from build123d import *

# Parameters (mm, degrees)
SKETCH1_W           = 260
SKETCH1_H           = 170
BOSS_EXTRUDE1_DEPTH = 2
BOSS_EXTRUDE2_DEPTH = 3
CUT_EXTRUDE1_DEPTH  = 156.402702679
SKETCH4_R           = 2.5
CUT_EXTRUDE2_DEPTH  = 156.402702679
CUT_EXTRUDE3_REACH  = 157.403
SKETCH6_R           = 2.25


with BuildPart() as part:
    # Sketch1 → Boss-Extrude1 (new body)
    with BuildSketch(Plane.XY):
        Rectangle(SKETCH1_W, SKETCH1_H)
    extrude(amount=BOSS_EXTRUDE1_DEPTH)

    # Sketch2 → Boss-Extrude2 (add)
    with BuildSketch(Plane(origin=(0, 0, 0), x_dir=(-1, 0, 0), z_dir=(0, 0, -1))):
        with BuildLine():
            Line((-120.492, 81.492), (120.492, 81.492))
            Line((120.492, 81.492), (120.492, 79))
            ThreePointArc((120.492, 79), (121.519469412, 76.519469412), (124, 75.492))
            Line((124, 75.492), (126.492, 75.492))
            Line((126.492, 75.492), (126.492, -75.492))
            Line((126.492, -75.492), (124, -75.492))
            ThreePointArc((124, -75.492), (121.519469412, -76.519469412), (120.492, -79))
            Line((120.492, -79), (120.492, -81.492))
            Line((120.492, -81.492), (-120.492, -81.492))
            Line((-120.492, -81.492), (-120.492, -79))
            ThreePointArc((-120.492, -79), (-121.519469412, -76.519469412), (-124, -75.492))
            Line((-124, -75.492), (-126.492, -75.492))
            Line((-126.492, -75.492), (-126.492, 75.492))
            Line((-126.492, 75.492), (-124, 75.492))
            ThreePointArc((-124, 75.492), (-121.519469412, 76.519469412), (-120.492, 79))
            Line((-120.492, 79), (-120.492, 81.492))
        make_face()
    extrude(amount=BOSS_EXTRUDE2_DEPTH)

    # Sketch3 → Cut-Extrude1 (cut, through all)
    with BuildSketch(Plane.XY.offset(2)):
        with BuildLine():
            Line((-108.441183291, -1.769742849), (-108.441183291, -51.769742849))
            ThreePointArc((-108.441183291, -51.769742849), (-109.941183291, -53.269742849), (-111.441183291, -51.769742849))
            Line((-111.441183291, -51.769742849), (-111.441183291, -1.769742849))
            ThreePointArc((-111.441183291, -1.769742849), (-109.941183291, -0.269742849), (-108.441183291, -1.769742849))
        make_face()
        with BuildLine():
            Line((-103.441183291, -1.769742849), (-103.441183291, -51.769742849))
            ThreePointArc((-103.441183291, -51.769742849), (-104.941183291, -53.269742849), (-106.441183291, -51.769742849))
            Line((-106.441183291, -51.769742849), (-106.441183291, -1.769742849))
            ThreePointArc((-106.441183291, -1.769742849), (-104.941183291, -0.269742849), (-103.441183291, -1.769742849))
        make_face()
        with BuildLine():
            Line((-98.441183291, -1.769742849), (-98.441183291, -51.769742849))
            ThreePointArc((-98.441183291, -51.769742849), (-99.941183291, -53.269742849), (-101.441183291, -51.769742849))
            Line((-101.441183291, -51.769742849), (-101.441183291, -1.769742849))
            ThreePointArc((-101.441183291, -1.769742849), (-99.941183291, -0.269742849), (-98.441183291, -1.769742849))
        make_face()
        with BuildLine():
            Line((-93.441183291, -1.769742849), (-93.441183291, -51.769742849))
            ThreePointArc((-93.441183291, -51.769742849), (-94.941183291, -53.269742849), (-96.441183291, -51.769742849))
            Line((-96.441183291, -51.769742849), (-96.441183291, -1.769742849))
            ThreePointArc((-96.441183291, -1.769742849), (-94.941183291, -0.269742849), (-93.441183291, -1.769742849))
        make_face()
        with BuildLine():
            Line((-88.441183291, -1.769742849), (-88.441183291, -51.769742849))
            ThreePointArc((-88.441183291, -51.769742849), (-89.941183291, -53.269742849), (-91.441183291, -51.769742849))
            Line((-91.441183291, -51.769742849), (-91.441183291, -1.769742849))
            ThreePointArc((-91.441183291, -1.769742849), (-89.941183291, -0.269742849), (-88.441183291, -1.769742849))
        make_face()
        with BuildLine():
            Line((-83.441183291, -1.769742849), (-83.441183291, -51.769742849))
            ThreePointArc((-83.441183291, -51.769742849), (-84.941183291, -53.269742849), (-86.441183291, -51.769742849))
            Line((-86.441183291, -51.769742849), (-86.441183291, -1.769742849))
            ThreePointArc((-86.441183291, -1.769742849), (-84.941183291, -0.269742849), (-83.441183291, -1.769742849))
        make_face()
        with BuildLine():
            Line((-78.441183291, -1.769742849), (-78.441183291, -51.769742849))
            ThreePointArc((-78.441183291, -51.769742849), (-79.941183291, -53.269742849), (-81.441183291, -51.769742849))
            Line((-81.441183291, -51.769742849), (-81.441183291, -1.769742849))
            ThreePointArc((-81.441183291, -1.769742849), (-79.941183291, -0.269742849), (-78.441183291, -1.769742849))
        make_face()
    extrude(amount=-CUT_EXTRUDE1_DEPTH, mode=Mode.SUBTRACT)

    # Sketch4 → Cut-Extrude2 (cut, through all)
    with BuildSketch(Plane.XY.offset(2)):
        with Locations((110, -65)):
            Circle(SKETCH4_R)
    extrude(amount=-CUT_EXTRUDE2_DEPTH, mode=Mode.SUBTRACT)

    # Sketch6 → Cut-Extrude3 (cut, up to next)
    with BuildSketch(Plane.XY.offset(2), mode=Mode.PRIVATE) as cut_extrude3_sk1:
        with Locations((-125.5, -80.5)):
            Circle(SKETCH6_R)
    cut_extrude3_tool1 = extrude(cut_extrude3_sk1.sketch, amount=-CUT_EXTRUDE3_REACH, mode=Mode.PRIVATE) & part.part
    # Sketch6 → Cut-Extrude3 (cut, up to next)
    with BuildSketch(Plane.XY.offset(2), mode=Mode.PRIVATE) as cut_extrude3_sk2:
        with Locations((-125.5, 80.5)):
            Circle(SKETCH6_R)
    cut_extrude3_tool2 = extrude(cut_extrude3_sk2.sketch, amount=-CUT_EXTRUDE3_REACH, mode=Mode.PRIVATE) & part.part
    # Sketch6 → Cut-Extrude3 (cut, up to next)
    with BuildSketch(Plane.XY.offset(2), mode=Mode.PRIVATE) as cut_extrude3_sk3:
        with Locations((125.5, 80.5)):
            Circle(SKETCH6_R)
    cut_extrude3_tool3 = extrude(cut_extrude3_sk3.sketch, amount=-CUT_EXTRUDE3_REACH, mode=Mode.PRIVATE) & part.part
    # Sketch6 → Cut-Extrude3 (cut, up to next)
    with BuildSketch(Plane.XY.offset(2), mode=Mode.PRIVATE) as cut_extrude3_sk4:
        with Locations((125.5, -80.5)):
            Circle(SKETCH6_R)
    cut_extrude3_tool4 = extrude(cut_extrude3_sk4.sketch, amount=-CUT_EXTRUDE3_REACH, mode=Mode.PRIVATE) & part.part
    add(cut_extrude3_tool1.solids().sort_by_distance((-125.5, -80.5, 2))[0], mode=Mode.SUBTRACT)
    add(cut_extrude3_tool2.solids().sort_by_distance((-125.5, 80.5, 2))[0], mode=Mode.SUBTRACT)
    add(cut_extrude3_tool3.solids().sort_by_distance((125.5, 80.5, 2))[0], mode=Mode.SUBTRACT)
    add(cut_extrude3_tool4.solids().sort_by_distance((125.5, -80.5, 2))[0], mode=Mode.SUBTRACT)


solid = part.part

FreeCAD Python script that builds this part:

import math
import FreeCAD as App
import Part
import Sketcher
Q = App.Units.Quantity

doc = App.newDocument("Part")
body = doc.addObject("PartDesign::Body", "Body")

# Sketch on XY plane
sketch1 = doc.addObject("Sketcher::SketchObject", "Sketch")
body.addObject(sketch1)
sketch1.AttachmentSupport = (doc.XY_Plane, [""])
sketch1.MapMode = "FlatFace"
sketch1.addGeometry([
    Part.LineSegment(App.Vector(-130, 85, 0), App.Vector(-130, -85, 0)),
    Part.LineSegment(App.Vector(-130, -85, 0), App.Vector(130, -85, 0)),
    Part.LineSegment(App.Vector(130, -85, 0), App.Vector(130, 85, 0)),
    Part.LineSegment(App.Vector(130, 85, 0), App.Vector(-130, 85, 0)),
], False)
sketch1.addConstraint([
    Sketcher.Constraint("Coincident", 0, 2, 1, 1),
    Sketcher.Constraint("Coincident", 1, 2, 2, 1),
    Sketcher.Constraint("Coincident", 2, 2, 3, 1),
    Sketcher.Constraint("Coincident", 3, 2, 0, 1),
    Sketcher.Constraint("Vertical", 0),
    Sketcher.Constraint("Horizontal", 1),
    Sketcher.Constraint("Vertical", 2),
    Sketcher.Constraint("Horizontal", 3),
    Sketcher.Constraint("Symmetric", 0, 2, 2, 2, -1, 1),
    Sketcher.Constraint("DistanceX", 1, 1, 1, 2, Q("260 mm")),
    Sketcher.Constraint("DistanceY", 0, 2, 0, 1, Q("170 mm")),
])
pad1 = doc.addObject("PartDesign::Pad", "Pad")
body.addObject(pad1)
pad1.Profile = sketch1
pad1.Length = 2

# Sketch on XY plane
sketch2 = doc.addObject("Sketcher::SketchObject", "Sketch001")
body.addObject(sketch2)
sketch2.AttachmentSupport = (doc.XY_Plane, [""])
sketch2.MapMode = "FlatFace"
sketch2.addGeometry([
    Part.LineSegment(App.Vector(-120.492, 81.492, 0), App.Vector(120.492, 81.492, 0)),  # 0
    Part.LineSegment(App.Vector(120.492, 81.492, 0), App.Vector(120.492, 79, 0)),  # 1
    Part.ArcOfCircle(Part.Circle(App.Vector(124, 79, 0), App.Vector(0, 0, 1), 3.508), math.radians(-180), math.radians(-90)),  # 2
    Part.LineSegment(App.Vector(124, 75.492, 0), App.Vector(126.492, 75.492, 0)),  # 3
    Part.LineSegment(App.Vector(126.492, 75.492, 0), App.Vector(126.492, -75.492, 0)),  # 4
    Part.LineSegment(App.Vector(126.492, -75.492, 0), App.Vector(124, -75.492, 0)),  # 5
    Part.ArcOfCircle(Part.Circle(App.Vector(124, -79, 0), App.Vector(0, 0, 1), 3.508), math.radians(90), math.radians(180)),  # 6
    Part.LineSegment(App.Vector(120.492, -79, 0), App.Vector(120.492, -81.492, 0)),  # 7
    Part.LineSegment(App.Vector(120.492, -81.492, 0), App.Vector(-120.492, -81.492, 0)),  # 8
    Part.LineSegment(App.Vector(-120.492, -81.492, 0), App.Vector(-120.492, -79, 0)),  # 9
    Part.ArcOfCircle(Part.Circle(App.Vector(-124, -79, 0), App.Vector(0, 0, 1), 3.508), math.radians(0), math.radians(90)),  # 10
    Part.LineSegment(App.Vector(-124, -75.492, 0), App.Vector(-126.492, -75.492, 0)),  # 11
    Part.LineSegment(App.Vector(-126.492, -75.492, 0), App.Vector(-126.492, 75.492, 0)),  # 12
    Part.LineSegment(App.Vector(-126.492, 75.492, 0), App.Vector(-124, 75.492, 0)),  # 13
    Part.ArcOfCircle(Part.Circle(App.Vector(-124, 79, 0), App.Vector(0, 0, 1), 3.508), math.radians(-90), math.radians(0)),  # 14
    Part.LineSegment(App.Vector(-120.492, 79, 0), App.Vector(-120.492, 81.492, 0)),  # 15
], False)
sketch2.addConstraint([
    Sketcher.Constraint("Coincident", 0, 2, 1, 1),
    Sketcher.Constraint("Tangent", 1, 2, 2, 1),
    Sketcher.Constraint("Tangent", 2, 2, 3, 1),
    Sketcher.Constraint("Coincident", 3, 2, 4, 1),
    Sketcher.Constraint("Coincident", 4, 2, 5, 1),
    Sketcher.Constraint("Tangent", 5, 2, 6, 1),
    Sketcher.Constraint("Tangent", 6, 2, 7, 1),
    Sketcher.Constraint("Coincident", 7, 2, 8, 1),
    Sketcher.Constraint("Coincident", 8, 2, 9, 1),
    Sketcher.Constraint("Tangent", 9, 2, 10, 1),
    Sketcher.Constraint("Tangent", 10, 2, 11, 1),
    Sketcher.Constraint("Coincident", 11, 2, 12, 1),
    Sketcher.Constraint("Coincident", 12, 2, 13, 1),
    Sketcher.Constraint("Tangent", 13, 2, 14, 1),
    Sketcher.Constraint("Tangent", 14, 2, 15, 1),
    Sketcher.Constraint("Coincident", 15, 2, 0, 1),
    Sketcher.Constraint("Horizontal", 0),
    Sketcher.Constraint("Vertical", 1),
    Sketcher.Constraint("Horizontal", 3),
    Sketcher.Constraint("Vertical", 4),
    Sketcher.Constraint("Horizontal", 5),
    Sketcher.Constraint("Vertical", 7),
    Sketcher.Constraint("Horizontal", 8),
    Sketcher.Constraint("Vertical", 9),
    Sketcher.Constraint("Horizontal", 11),
    Sketcher.Constraint("Vertical", 12),
    Sketcher.Constraint("Horizontal", 13),
    Sketcher.Constraint("Vertical", 15),
    Sketcher.Constraint("Equal", 2, 6),
    Sketcher.Constraint("Equal", 6, 10),
    Sketcher.Constraint("Equal", 10, 14),
    Sketcher.Constraint("Symmetric", 2, 3, 10, 3, -1, 1),
    Sketcher.Constraint("Symmetric", 6, 3, 14, 3, -1, 1),
    Sketcher.Constraint("Symmetric", 6, 3, 10, 3, -2),
    Sketcher.Constraint("Equal", 5, 11),
    Sketcher.Constraint("Equal", 13, 1),
    Sketcher.Constraint("Equal", 1, 7),
    Sketcher.Constraint("DistanceX", -1, 1, 2, 3, Q("124 mm")),
    Sketcher.Constraint("DistanceY", -1, 1, 2, 3, Q("79 mm")),
    Sketcher.Constraint("Radius", 2, Q("3.508 mm")),
    Sketcher.Constraint("DistanceY", 2, 2, 0, 2, Q("6 mm")),
])
pad2 = doc.addObject("PartDesign::Pad", "Pad001")
body.addObject(pad2)
pad2.Profile = sketch2
pad2.Length = 3
pad2.Reversed = True

# Sketch on XY plane
sketch3 = doc.addObject("Sketcher::SketchObject", "Sketch002")
body.addObject(sketch3)
sketch3.AttachmentSupport = (doc.XY_Plane, [""])
sketch3.MapMode = "FlatFace"
sketch3.AttachmentOffset = App.Placement(App.Vector(0, 0, 2), App.Rotation())
sketch3.addGeometry([
    Part.LineSegment(App.Vector(-108.441183, -51.769743, 0), App.Vector(-108.441183, -1.769743, 0)),  # 0
    Part.ArcOfCircle(Part.Circle(App.Vector(-109.941183, -1.769743, 0), App.Vector(0, 0, 1), 1.5), math.radians(0), math.radians(180)),  # 1
    Part.LineSegment(App.Vector(-111.441183, -1.769743, 0), App.Vector(-111.441183, -51.769743, 0)),  # 2
    Part.ArcOfCircle(Part.Circle(App.Vector(-109.941183, -51.769743, 0), App.Vector(0, 0, 1), 1.5), math.radians(180), math.radians(360)),  # 3
    Part.LineSegment(App.Vector(-103.441183, -51.769743, 0), App.Vector(-103.441183, -1.769743, 0)),  # 4
    Part.ArcOfCircle(Part.Circle(App.Vector(-104.941183, -1.769743, 0), App.Vector(0, 0, 1), 1.5), math.radians(0), math.radians(180)),  # 5
    Part.LineSegment(App.Vector(-106.441183, -1.769743, 0), App.Vector(-106.441183, -51.769743, 0)),  # 6
    Part.ArcOfCircle(Part.Circle(App.Vector(-104.941183, -51.769743, 0), App.Vector(0, 0, 1), 1.5), math.radians(180), math.radians(360)),  # 7
    Part.LineSegment(App.Vector(-98.441183, -51.769743, 0), App.Vector(-98.441183, -1.769743, 0)),  # 8
    Part.ArcOfCircle(Part.Circle(App.Vector(-99.941183, -1.769743, 0), App.Vector(0, 0, 1), 1.5), math.radians(0), math.radians(180)),  # 9
    Part.LineSegment(App.Vector(-101.441183, -1.769743, 0), App.Vector(-101.441183, -51.769743, 0)),  # 10
    Part.ArcOfCircle(Part.Circle(App.Vector(-99.941183, -51.769743, 0), App.Vector(0, 0, 1), 1.5), math.radians(180), math.radians(360)),  # 11
    Part.LineSegment(App.Vector(-93.441183, -51.769743, 0), App.Vector(-93.441183, -1.769743, 0)),  # 12
    Part.ArcOfCircle(Part.Circle(App.Vector(-94.941183, -1.769743, 0), App.Vector(0, 0, 1), 1.5), math.radians(0), math.radians(180)),  # 13
    Part.LineSegment(App.Vector(-96.441183, -1.769743, 0), App.Vector(-96.441183, -51.769743, 0)),  # 14
    Part.ArcOfCircle(Part.Circle(App.Vector(-94.941183, -51.769743, 0), App.Vector(0, 0, 1), 1.5), math.radians(180), math.radians(360)),  # 15
    Part.LineSegment(App.Vector(-88.441183, -51.769743, 0), App.Vector(-88.441183, -1.769743, 0)),  # 16
    Part.ArcOfCircle(Part.Circle(App.Vector(-89.941183, -1.769743, 0), App.Vector(0, 0, 1), 1.5), math.radians(0), math.radians(180)),  # 17
    Part.LineSegment(App.Vector(-91.441183, -1.769743, 0), App.Vector(-91.441183, -51.769743, 0)),  # 18
    Part.ArcOfCircle(Part.Circle(App.Vector(-89.941183, -51.769743, 0), App.Vector(0, 0, 1), 1.5), math.radians(180), math.radians(360)),  # 19
    Part.LineSegment(App.Vector(-83.441183, -51.769743, 0), App.Vector(-83.441183, -1.769743, 0)),  # 20
    Part.ArcOfCircle(Part.Circle(App.Vector(-84.941183, -1.769743, 0), App.Vector(0, 0, 1), 1.5), math.radians(0), math.radians(180)),  # 21
    Part.LineSegment(App.Vector(-86.441183, -1.769743, 0), App.Vector(-86.441183, -51.769743, 0)),  # 22
    Part.ArcOfCircle(Part.Circle(App.Vector(-84.941183, -51.769743, 0), App.Vector(0, 0, 1), 1.5), math.radians(180), math.radians(360)),  # 23
    Part.LineSegment(App.Vector(-78.441183, -51.769743, 0), App.Vector(-78.441183, -1.769743, 0)),  # 24
    Part.ArcOfCircle(Part.Circle(App.Vector(-79.941183, -1.769743, 0), App.Vector(0, 0, 1), 1.5), math.radians(0), math.radians(180)),  # 25
    Part.LineSegment(App.Vector(-81.441183, -1.769743, 0), App.Vector(-81.441183, -51.769743, 0)),  # 26
    Part.ArcOfCircle(Part.Circle(App.Vector(-79.941183, -51.769743, 0), App.Vector(0, 0, 1), 1.5), math.radians(180), math.radians(360)),  # 27
], False)
sketch3.addConstraint([
    Sketcher.Constraint("Tangent", 0, 2, 1, 1),
    Sketcher.Constraint("Tangent", 1, 2, 2, 1),
    Sketcher.Constraint("Tangent", 2, 2, 3, 1),
    Sketcher.Constraint("Tangent", 3, 2, 0, 1),
    Sketcher.Constraint("Tangent", 4, 2, 5, 1),
    Sketcher.Constraint("Tangent", 5, 2, 6, 1),
    Sketcher.Constraint("Tangent", 6, 2, 7, 1),
    Sketcher.Constraint("Tangent", 7, 2, 4, 1),
    Sketcher.Constraint("Tangent", 8, 2, 9, 1),
    Sketcher.Constraint("Tangent", 9, 2, 10, 1),
    Sketcher.Constraint("Tangent", 10, 2, 11, 1),
    Sketcher.Constraint("Tangent", 11, 2, 8, 1),
    Sketcher.Constraint("Tangent", 12, 2, 13, 1),
    Sketcher.Constraint("Tangent", 13, 2, 14, 1),
    Sketcher.Constraint("Tangent", 14, 2, 15, 1),
    Sketcher.Constraint("Tangent", 15, 2, 12, 1),
    Sketcher.Constraint("Tangent", 16, 2, 17, 1),
    Sketcher.Constraint("Tangent", 17, 2, 18, 1),
    Sketcher.Constraint("Tangent", 18, 2, 19, 1),
    Sketcher.Constraint("Tangent", 19, 2, 16, 1),
    Sketcher.Constraint("Tangent", 20, 2, 21, 1),
    Sketcher.Constraint("Tangent", 21, 2, 22, 1),
    Sketcher.Constraint("Tangent", 22, 2, 23, 1),
    Sketcher.Constraint("Tangent", 23, 2, 20, 1),
    Sketcher.Constraint("Tangent", 24, 2, 25, 1),
    Sketcher.Constraint("Tangent", 25, 2, 26, 1),
    Sketcher.Constraint("Tangent", 26, 2, 27, 1),
    Sketcher.Constraint("Tangent", 27, 2, 24, 1),
    Sketcher.Constraint("Vertical", 0),
    Sketcher.Constraint("Vertical", 2),
    Sketcher.Constraint("Vertical", 4),
    Sketcher.Constraint("Vertical", 6),
    Sketcher.Constraint("Vertical", 8),
    Sketcher.Constraint("Vertical", 10),
    Sketcher.Constraint("Vertical", 12),
    Sketcher.Constraint("Vertical", 14),
    Sketcher.Constraint("Vertical", 16),
    Sketcher.Constraint("Vertical", 18),
    Sketcher.Constraint("Vertical", 20),
    Sketcher.Constraint("Vertical", 22),
    Sketcher.Constraint("Vertical", 24),
    Sketcher.Constraint("Vertical", 26),
    Sketcher.Constraint("Equal", 3, 5),
    Sketcher.Constraint("Equal", 7, 9),
    Sketcher.Constraint("Equal", 11, 13),
    Sketcher.Constraint("Equal", 15, 17),
    Sketcher.Constraint("Equal", 19, 21),
    Sketcher.Constraint("Equal", 23, 25),
    Sketcher.Constraint("Horizontal", 1, 3, 5, 3),
    Sketcher.Constraint("Horizontal", 3, 3, 7, 3),
    Sketcher.Constraint("Horizontal", 5, 3, 9, 3),
    Sketcher.Constraint("Horizontal", 7, 3, 11, 3),
    Sketcher.Constraint("Horizontal", 9, 3, 13, 3),
    Sketcher.Constraint("Horizontal", 11, 3, 15, 3),
    Sketcher.Constraint("Horizontal", 13, 3, 17, 3),
    Sketcher.Constraint("Horizontal", 15, 3, 19, 3),
    Sketcher.Constraint("Horizontal", 17, 3, 21, 3),
    Sketcher.Constraint("Horizontal", 19, 3, 23, 3),
    Sketcher.Constraint("Horizontal", 21, 3, 25, 3),
    Sketcher.Constraint("Horizontal", 23, 3, 27, 3),
    Sketcher.Constraint("Radius", 1, Q("1.5 mm")),
    Sketcher.Constraint("DistanceY", 0, 1, 0, 2, Q("50 mm")),
    Sketcher.Constraint("DistanceX", 1, 3, 5, 3, Q("5 mm")),
    Sketcher.Constraint("DistanceX", 5, 3, 9, 3, Q("5 mm")),
    Sketcher.Constraint("DistanceX", 9, 3, 13, 3, Q("5 mm")),
    Sketcher.Constraint("DistanceX", 13, 3, 17, 3, Q("5 mm")),
    Sketcher.Constraint("DistanceX", 17, 3, 21, 3, Q("5 mm")),
    Sketcher.Constraint("DistanceX", 21, 3, 25, 3, Q("5 mm")),
    Sketcher.Constraint("DistanceX", 1, 3, -1, 1, Q("109.941183 mm")),
    Sketcher.Constraint("DistanceY", 1, 3, -1, 1, Q("1.769743 mm")),
])
pocket1 = doc.addObject("PartDesign::Pocket", "Pocket")
body.addObject(pocket1)
pocket1.Profile = sketch3
pocket1.Type = "ThroughAll"

# Sketch on XY plane
sketch4 = doc.addObject("Sketcher::SketchObject", "Sketch003")
body.addObject(sketch4)
sketch4.AttachmentSupport = (doc.XY_Plane, [""])
sketch4.MapMode = "FlatFace"
sketch4.AttachmentOffset = App.Placement(App.Vector(0, 0, 2), App.Rotation())
sketch4.addGeometry(Part.Circle(App.Vector(110, -65, 0), App.Vector(0, 0, 1), 2.5), False)
sketch4.addConstraint([
    Sketcher.Constraint("Diameter", 0, Q("5 mm")),
    Sketcher.Constraint("DistanceX", -1, 1, 0, 3, Q("110 mm")),
    Sketcher.Constraint("DistanceY", 0, 3, -1, 1, Q("65 mm")),
])
pocket2 = doc.addObject("PartDesign::Pocket", "Pocket001")
body.addObject(pocket2)
pocket2.Profile = sketch4
pocket2.Type = "ThroughAll"

# Sketch on XY plane
sketch5 = doc.addObject("Sketcher::SketchObject", "Sketch004")
body.addObject(sketch5)
sketch5.AttachmentSupport = (doc.XY_Plane, [""])
sketch5.MapMode = "FlatFace"
sketch5.AttachmentOffset = App.Placement(App.Vector(0, 0, 2), App.Rotation())
sketch5.addGeometry(Part.Circle(App.Vector(-125.5, -80.5, 0), App.Vector(0, 0, 1), 2.25), False)
sketch5.addConstraint([
    Sketcher.Constraint("Diameter", 0, Q("4.5 mm")),
    Sketcher.Constraint("DistanceX", 0, 3, -1, 1, Q("125.5 mm")),
    Sketcher.Constraint("DistanceY", 0, 3, -1, 1, Q("80.5 mm")),
])
pocket3 = doc.addObject("PartDesign::Pocket", "Pocket002")
body.addObject(pocket3)
pocket3.Profile = sketch5
pocket3.Type = "UpToFirst"

# Sketch on XY plane
sketch6 = doc.addObject("Sketcher::SketchObject", "Sketch005")
body.addObject(sketch6)
sketch6.AttachmentSupport = (doc.XY_Plane, [""])
sketch6.MapMode = "FlatFace"
sketch6.AttachmentOffset = App.Placement(App.Vector(0, 0, 2), App.Rotation())
sketch6.addGeometry(Part.Circle(App.Vector(-125.5, 80.5, 0), App.Vector(0, 0, 1), 2.25), False)
sketch6.addConstraint([
    Sketcher.Constraint("Diameter", 0, Q("4.5 mm")),
    Sketcher.Constraint("DistanceX", 0, 3, -1, 1, Q("125.5 mm")),
    Sketcher.Constraint("DistanceY", -1, 1, 0, 3, Q("80.5 mm")),
])
pocket4 = doc.addObject("PartDesign::Pocket", "Pocket003")
body.addObject(pocket4)
pocket4.Profile = sketch6
pocket4.Type = "UpToFirst"

# Sketch on XY plane
sketch7 = doc.addObject("Sketcher::SketchObject", "Sketch006")
body.addObject(sketch7)
sketch7.AttachmentSupport = (doc.XY_Plane, [""])
sketch7.MapMode = "FlatFace"
sketch7.AttachmentOffset = App.Placement(App.Vector(0, 0, 2), App.Rotation())
sketch7.addGeometry(Part.Circle(App.Vector(125.5, 80.5, 0), App.Vector(0, 0, 1), 2.25), False)
sketch7.addConstraint([
    Sketcher.Constraint("Diameter", 0, Q("4.5 mm")),
    Sketcher.Constraint("DistanceX", -1, 1, 0, 3, Q("125.5 mm")),
    Sketcher.Constraint("DistanceY", -1, 1, 0, 3, Q("80.5 mm")),
])
pocket5 = doc.addObject("PartDesign::Pocket", "Pocket004")
body.addObject(pocket5)
pocket5.Profile = sketch7
pocket5.Type = "UpToFirst"

# Sketch on XY plane
sketch8 = doc.addObject("Sketcher::SketchObject", "Sketch007")
body.addObject(sketch8)
sketch8.AttachmentSupport = (doc.XY_Plane, [""])
sketch8.MapMode = "FlatFace"
sketch8.AttachmentOffset = App.Placement(App.Vector(0, 0, 2), App.Rotation())
sketch8.addGeometry(Part.Circle(App.Vector(125.5, -80.5, 0), App.Vector(0, 0, 1), 2.25), False)
sketch8.addConstraint([
    Sketcher.Constraint("Diameter", 0, Q("4.5 mm")),
    Sketcher.Constraint("DistanceX", -1, 1, 0, 3, Q("125.5 mm")),
    Sketcher.Constraint("DistanceY", 0, 3, -1, 1, Q("80.5 mm")),
])
pocket6 = doc.addObject("PartDesign::Pocket", "Pocket005")
body.addObject(pocket6)
pocket6.Profile = sketch8
pocket6.Type = "UpToFirst"

doc.recompute()
